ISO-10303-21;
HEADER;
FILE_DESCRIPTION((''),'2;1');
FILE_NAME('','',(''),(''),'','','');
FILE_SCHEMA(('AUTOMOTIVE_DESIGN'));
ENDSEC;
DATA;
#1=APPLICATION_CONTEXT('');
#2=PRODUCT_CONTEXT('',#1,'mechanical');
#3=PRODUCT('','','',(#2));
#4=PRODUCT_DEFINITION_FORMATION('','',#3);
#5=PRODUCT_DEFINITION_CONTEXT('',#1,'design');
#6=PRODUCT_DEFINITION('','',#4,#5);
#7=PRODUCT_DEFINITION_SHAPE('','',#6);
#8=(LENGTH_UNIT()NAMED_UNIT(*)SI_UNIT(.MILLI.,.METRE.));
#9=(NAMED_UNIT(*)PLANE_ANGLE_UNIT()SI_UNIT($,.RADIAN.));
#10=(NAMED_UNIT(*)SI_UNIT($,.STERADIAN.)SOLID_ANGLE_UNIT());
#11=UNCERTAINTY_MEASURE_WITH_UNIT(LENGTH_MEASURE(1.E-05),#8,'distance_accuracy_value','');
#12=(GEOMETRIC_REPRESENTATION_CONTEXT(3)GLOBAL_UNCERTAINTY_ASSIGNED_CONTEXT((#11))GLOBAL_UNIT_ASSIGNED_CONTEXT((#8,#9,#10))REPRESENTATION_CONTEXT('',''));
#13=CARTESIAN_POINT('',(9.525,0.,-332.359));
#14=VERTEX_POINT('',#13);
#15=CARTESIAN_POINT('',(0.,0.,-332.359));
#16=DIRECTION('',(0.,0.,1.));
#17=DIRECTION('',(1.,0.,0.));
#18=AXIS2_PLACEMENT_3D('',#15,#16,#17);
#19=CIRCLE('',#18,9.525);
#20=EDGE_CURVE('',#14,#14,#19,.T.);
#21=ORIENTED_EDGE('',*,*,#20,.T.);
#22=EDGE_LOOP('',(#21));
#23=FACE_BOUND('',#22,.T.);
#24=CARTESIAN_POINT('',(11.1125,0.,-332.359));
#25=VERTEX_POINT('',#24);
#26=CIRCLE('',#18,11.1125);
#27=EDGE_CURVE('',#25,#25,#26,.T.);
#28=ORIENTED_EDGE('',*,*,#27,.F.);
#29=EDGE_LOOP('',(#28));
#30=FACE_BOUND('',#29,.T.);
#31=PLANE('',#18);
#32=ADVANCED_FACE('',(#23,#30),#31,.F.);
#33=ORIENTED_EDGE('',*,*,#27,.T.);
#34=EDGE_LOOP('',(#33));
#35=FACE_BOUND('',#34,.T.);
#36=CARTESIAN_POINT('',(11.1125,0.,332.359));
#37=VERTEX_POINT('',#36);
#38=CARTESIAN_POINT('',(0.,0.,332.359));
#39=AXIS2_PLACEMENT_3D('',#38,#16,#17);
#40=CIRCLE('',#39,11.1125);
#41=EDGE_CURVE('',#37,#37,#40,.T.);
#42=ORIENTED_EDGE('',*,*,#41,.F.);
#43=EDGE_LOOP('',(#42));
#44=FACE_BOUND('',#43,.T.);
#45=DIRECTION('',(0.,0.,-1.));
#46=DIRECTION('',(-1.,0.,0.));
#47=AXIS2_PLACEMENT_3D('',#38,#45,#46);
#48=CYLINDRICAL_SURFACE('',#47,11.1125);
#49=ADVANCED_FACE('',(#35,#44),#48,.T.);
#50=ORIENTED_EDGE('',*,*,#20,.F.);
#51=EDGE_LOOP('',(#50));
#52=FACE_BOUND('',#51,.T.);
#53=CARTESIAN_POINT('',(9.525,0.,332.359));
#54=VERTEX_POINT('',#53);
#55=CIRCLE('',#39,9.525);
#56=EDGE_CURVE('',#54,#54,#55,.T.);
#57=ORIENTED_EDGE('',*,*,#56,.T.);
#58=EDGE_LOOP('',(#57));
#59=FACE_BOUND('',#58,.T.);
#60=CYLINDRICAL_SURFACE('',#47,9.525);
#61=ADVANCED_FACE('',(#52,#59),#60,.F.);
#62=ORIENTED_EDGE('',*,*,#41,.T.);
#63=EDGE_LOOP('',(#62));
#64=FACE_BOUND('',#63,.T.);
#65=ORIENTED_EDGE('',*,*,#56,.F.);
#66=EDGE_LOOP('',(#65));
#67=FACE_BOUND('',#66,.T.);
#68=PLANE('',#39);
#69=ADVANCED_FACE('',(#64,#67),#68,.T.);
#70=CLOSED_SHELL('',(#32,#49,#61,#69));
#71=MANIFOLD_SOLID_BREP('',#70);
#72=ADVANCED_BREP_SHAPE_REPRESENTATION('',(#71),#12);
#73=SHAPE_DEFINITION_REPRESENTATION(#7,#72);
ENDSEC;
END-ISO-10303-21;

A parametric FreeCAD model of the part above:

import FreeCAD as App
import Part
import Sketcher
Q = App.Units.Quantity

doc = App.newDocument("Part")
body = doc.addObject("PartDesign::Body", "Body")

# Sketch on XY plane
sketch1 = doc.addObject("Sketcher::SketchObject", "Sketch")
body.addObject(sketch1)
sketch1.AttachmentSupport = (doc.XY_Plane, [""])
sketch1.MapMode = "FlatFace"
sketch1.addGeometry([
    Part.Circle(App.Vector(0, 0, 0), App.Vector(0, 0, 1), 11),
    Part.Circle(App.Vector(0, 0, 0), App.Vector(0, 0, 1), 10),
], False)
sketch1.addConstraint([
    Sketcher.Constraint("Coincident", 0, 3, -1, 1),
    Sketcher.Constraint("Coincident", 1, 3, -1, 1),
    Sketcher.Constraint("Diameter", 1, Q("0.75 in")),
    Sketcher.Constraint("Diameter", 0, Q("0.875 in")),
])
pad1 = doc.addObject("PartDesign::Pad", "Pad")
body.addObject(pad1)
pad1.Profile = sketch1
pad1.Length = Q("26.17 in")
pad1.Midplane = True

doc.recompute()
